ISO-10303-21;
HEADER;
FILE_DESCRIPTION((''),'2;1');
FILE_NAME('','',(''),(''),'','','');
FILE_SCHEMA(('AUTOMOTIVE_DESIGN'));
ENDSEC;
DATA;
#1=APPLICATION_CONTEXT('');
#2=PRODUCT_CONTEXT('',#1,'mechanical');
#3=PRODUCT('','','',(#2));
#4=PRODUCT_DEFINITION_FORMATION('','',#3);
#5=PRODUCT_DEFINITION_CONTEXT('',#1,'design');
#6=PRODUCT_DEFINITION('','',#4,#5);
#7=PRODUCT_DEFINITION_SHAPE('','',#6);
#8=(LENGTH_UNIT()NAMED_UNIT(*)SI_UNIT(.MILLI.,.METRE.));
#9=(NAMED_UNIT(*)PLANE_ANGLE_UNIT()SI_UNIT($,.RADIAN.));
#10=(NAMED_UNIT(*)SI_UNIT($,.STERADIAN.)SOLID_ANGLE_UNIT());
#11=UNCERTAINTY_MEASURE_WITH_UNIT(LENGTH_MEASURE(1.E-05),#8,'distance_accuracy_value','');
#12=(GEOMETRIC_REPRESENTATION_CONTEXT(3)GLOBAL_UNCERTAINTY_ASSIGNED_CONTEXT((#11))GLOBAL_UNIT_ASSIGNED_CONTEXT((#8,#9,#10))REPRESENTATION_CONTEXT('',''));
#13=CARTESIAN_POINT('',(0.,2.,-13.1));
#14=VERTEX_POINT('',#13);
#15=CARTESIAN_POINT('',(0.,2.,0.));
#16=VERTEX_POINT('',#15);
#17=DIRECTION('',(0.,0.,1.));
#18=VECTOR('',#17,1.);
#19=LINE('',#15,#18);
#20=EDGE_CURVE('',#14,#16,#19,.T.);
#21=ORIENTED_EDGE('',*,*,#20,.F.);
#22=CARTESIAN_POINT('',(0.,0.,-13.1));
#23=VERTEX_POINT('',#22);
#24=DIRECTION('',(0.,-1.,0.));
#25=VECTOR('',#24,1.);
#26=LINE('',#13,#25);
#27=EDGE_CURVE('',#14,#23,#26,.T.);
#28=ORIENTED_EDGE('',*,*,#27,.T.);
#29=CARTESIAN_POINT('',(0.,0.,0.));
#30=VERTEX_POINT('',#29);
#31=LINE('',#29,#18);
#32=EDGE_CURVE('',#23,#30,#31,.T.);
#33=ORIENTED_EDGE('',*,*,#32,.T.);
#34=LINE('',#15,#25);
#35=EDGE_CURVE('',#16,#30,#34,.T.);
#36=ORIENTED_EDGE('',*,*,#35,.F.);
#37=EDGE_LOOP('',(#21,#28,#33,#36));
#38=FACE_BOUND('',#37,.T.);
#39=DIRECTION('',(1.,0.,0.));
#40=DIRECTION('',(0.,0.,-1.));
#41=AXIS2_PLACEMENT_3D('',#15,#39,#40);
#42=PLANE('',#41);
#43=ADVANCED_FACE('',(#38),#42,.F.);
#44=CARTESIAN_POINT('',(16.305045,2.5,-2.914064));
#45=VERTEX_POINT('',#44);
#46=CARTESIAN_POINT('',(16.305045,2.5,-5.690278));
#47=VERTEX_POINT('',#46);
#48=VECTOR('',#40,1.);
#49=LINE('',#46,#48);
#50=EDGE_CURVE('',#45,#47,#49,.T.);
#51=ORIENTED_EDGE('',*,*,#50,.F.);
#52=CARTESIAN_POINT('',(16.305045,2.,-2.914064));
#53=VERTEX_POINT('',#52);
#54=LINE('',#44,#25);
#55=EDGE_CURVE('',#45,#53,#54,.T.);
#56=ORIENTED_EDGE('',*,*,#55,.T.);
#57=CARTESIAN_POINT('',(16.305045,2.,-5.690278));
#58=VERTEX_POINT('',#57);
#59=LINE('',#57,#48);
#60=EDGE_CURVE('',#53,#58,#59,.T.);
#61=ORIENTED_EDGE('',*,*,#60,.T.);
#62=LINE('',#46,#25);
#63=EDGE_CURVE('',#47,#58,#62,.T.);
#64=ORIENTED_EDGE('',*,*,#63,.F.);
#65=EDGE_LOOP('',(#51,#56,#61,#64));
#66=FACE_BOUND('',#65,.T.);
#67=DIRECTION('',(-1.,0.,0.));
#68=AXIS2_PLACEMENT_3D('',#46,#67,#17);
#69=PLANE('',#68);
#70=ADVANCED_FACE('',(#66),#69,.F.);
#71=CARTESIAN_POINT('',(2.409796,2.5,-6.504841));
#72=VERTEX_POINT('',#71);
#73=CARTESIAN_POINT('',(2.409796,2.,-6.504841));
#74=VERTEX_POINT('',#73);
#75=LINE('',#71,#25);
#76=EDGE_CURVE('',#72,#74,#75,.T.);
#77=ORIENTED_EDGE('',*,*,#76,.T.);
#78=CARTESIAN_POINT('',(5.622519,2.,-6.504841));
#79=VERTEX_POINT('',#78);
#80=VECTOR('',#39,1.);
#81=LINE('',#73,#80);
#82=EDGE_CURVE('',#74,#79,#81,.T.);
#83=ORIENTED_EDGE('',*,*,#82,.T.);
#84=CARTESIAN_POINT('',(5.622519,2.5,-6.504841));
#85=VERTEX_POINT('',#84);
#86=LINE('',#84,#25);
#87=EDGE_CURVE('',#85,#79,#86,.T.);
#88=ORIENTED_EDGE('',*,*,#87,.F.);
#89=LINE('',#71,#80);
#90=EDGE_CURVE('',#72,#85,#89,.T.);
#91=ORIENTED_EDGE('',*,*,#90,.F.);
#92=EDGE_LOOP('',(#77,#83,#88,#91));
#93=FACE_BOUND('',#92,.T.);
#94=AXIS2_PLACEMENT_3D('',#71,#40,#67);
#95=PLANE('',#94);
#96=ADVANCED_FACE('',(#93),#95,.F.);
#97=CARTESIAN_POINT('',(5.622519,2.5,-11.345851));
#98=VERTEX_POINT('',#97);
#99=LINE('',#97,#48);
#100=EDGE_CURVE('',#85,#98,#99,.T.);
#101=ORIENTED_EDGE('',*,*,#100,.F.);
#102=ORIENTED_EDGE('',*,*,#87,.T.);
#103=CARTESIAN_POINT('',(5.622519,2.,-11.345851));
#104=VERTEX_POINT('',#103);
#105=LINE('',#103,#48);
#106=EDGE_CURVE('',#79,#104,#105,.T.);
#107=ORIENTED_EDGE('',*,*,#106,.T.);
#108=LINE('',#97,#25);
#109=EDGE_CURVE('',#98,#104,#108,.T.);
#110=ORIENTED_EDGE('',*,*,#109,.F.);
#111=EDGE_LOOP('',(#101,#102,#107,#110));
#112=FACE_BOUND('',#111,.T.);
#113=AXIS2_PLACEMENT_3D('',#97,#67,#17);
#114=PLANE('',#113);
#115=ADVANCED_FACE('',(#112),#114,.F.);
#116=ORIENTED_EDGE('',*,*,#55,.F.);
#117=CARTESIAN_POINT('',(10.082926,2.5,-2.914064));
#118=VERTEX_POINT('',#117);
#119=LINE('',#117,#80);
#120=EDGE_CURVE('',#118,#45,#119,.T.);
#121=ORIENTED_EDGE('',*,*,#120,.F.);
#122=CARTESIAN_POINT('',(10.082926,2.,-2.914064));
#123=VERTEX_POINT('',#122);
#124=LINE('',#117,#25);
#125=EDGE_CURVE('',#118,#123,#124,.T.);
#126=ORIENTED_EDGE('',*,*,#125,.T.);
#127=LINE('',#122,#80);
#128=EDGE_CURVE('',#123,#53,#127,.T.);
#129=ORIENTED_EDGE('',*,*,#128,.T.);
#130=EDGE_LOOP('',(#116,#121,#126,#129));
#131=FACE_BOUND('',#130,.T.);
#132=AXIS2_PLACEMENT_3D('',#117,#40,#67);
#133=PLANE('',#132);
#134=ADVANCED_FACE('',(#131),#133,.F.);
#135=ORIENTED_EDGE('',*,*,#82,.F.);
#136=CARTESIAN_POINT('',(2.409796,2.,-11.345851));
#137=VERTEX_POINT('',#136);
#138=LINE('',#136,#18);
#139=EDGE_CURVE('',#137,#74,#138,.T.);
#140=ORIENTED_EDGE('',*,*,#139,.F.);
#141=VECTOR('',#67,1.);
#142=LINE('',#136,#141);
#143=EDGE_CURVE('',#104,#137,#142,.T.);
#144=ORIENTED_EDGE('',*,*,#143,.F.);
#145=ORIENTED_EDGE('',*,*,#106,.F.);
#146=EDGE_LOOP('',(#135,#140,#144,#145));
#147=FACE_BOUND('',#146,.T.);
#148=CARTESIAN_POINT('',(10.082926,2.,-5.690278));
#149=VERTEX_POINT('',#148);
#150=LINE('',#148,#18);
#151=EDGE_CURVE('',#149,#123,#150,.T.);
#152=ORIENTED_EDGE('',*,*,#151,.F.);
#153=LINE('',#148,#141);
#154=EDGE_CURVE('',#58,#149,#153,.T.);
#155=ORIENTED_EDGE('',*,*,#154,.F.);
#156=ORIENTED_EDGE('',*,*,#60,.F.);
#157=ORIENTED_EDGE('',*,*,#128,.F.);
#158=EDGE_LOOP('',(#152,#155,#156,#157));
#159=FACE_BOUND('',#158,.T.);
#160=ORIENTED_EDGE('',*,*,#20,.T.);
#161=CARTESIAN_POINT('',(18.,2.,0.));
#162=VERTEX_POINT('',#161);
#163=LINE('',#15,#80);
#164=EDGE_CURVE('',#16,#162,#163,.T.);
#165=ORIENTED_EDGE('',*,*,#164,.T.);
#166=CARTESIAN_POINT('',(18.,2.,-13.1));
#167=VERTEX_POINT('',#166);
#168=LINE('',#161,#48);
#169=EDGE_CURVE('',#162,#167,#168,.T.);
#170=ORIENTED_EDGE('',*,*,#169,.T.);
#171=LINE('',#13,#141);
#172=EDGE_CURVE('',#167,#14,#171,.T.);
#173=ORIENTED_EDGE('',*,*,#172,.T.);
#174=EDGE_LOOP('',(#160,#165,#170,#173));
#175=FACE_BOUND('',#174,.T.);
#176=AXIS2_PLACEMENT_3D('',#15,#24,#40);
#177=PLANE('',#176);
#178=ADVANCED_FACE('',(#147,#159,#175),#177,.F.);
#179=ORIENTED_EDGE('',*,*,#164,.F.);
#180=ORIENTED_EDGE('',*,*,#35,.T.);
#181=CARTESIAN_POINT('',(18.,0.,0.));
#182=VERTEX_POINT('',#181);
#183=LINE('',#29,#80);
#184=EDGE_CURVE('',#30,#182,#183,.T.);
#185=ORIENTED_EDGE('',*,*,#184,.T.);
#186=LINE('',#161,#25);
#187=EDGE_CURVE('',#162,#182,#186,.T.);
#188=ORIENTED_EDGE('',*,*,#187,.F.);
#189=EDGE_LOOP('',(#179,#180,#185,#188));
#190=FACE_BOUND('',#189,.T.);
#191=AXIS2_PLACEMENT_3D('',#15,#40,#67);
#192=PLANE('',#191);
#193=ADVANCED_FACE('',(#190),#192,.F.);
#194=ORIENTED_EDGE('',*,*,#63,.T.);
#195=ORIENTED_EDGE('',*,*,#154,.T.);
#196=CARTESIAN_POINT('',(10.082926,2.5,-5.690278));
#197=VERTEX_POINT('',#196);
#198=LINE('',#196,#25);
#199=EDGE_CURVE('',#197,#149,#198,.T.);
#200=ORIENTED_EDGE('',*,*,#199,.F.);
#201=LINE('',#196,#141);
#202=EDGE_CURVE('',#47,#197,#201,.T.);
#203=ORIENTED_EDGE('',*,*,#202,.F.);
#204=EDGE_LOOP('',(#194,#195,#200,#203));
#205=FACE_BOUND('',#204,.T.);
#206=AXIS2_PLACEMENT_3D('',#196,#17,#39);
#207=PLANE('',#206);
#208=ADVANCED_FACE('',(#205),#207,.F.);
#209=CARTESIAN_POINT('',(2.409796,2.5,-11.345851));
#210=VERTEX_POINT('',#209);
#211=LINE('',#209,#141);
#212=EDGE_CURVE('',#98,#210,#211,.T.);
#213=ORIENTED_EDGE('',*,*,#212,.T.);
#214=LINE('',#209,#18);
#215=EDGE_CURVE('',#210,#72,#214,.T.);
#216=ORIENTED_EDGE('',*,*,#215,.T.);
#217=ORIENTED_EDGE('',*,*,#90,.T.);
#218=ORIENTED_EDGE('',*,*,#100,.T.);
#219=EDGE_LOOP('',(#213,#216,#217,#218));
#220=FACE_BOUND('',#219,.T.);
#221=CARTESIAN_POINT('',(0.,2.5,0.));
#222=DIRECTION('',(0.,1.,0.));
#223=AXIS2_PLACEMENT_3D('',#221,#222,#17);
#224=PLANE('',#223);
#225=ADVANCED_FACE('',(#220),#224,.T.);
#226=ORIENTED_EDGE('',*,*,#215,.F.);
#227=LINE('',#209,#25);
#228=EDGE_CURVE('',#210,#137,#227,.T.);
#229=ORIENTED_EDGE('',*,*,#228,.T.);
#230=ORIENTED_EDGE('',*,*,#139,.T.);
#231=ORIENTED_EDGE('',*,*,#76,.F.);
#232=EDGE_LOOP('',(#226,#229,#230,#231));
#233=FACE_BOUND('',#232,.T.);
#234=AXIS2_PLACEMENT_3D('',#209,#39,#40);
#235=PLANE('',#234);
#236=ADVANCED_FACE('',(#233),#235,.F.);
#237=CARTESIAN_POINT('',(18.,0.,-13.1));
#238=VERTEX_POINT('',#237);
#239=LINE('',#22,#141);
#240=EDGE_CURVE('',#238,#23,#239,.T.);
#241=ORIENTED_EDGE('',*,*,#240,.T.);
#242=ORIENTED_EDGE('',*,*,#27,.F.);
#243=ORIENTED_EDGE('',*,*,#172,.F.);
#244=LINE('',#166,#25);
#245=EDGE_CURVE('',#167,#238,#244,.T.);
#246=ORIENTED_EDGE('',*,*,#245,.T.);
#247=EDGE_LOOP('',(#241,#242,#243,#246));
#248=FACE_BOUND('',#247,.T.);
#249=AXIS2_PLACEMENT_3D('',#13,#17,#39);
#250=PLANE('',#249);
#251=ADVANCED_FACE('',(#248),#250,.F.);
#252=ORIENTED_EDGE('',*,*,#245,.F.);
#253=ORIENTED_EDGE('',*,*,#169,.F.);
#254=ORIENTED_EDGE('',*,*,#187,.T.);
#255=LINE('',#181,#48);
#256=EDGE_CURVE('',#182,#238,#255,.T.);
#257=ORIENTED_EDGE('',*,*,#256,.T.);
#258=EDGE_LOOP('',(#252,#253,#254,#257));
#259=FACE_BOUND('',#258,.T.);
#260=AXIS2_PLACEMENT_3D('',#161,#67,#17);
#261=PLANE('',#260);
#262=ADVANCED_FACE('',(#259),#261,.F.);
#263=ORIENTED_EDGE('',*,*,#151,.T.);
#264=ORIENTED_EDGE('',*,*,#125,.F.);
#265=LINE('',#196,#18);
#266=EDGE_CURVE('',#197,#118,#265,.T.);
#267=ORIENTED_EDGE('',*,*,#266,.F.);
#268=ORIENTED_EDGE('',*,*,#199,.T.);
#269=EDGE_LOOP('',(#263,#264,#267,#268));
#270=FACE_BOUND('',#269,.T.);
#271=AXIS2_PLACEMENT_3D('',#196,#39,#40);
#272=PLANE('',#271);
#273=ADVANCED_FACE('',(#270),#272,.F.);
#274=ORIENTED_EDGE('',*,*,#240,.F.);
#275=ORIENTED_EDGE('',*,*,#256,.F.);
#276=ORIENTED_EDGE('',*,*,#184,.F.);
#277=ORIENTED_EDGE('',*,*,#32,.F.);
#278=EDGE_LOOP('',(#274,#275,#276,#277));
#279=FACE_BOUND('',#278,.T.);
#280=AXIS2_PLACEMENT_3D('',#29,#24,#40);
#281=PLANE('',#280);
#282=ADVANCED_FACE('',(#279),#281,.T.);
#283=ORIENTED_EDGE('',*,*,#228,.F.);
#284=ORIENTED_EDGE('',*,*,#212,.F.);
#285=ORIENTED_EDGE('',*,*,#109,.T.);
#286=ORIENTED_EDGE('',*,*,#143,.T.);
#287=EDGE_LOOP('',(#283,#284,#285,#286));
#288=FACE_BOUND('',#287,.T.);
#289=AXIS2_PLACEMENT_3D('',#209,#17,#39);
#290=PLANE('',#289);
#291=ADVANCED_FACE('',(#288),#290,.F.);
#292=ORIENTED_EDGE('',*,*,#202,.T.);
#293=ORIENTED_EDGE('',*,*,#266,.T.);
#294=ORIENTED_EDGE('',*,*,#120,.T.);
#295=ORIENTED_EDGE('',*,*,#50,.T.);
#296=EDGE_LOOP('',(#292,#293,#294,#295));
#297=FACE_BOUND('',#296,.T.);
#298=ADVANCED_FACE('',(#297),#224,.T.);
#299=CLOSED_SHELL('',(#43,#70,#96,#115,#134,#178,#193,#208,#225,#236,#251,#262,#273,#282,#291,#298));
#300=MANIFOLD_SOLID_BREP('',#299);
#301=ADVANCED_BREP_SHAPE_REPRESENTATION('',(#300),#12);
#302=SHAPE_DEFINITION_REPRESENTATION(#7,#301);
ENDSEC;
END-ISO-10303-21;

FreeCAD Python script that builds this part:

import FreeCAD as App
import Part
import Sketcher

doc = App.newDocument("Part")
body = doc.addObject("PartDesign::Body", "Body")

# Sketch on XZ plane
sketch1 = body.newObject("Sketcher::SketchObject", "Sketch")
sketch1.AttachmentSupport = (doc.getObject("XZ_Plane"), [""])
sketch1.MapMode = "FlatFace"
sketch1.addGeometry(Part.LineSegment(App.Vector(0, -13, 0), App.Vector(0, 0, 0)), False)
sketch1.addGeometry(Part.LineSegment(App.Vector(0, 0, 0), App.Vector(18, 0, 0)), False)
sketch1.addGeometry(Part.LineSegment(App.Vector(18, 0, 0), App.Vector(18, -13, 0)), False)
sketch1.addGeometry(Part.LineSegment(App.Vector(18, -13, 0), App.Vector(0, -13, 0)), False)
sketch1.addConstraint(Sketcher.Constraint("Coincident", 0, 2, 1, 1))
sketch1.addConstraint(Sketcher.Constraint("Coincident", 1, 2, 2, 1))
sketch1.addConstraint(Sketcher.Constraint("Coincident", 2, 2, 3, 1))
sketch1.addConstraint(Sketcher.Constraint("Coincident", 3, 2, 0, 1))
sketch1.addConstraint(Sketcher.Constraint("Vertical", 0))
sketch1.addConstraint(Sketcher.Constraint("Horizontal", 1))
sketch1.addConstraint(Sketcher.Constraint("Vertical", 2))
sketch1.addConstraint(Sketcher.Constraint("Horizontal", 3))
sketch1.addConstraint(Sketcher.Constraint("Coincident", 0, 2, -1, 1))
sketch1.addConstraint(Sketcher.Constraint("DistanceX", 1, 1, 1, 2, 18.0))
sketch1.addConstraint(Sketcher.Constraint("DistanceY", 0, 1, 0, 2, 13.1))
pad1 = body.newObject("PartDesign::Pad", "Pad")
pad1.Profile = sketch1
pad1.Length = 2
pad1.Reversed = True

# Sketch on XZ plane
sketch2 = body.newObject("Sketcher::SketchObject", "Sketch001")
sketch2.AttachmentSupport = (doc.getObject("XZ_Plane"), [""])
sketch2.MapMode = "FlatFace"
sketch2.AttachmentOffset = App.Placement(App.Vector(0, 0, -2), App.Rotation())
sketch2.addGeometry(Part.LineSegment(App.Vector(2.4, -11.3, 0), App.Vector(2.4, -6.5, 0)), False)
sketch2.addGeometry(Part.LineSegment(App.Vector(2.4, -6.5, 0), App.Vector(5.6, -6.5, 0)), False)
sketch2.addGeometry(Part.LineSegment(App.Vector(5.6, -6.5, 0), App.Vector(5.6, -11.3, 0)), False)
sketch2.addGeometry(Part.LineSegment(App.Vector(5.6, -11.3, 0), App.Vector(2.4, -11.3, 0)), False)
sketch2.addGeometry(Part.LineSegment(App.Vector(10.1, -5.7, 0), App.Vector(10.1, -2.9, 0)), False)
sketch2.addGeometry(Part.LineSegment(App.Vector(10.1, -2.9, 0), App.Vector(16.3, -2.9, 0)), False)
sketch2.addGeometry(Part.LineSegment(App.Vector(16.3, -2.9, 0), App.Vector(16.3, -5.7, 0)), False)
sketch2.addGeometry(Part.LineSegment(App.Vector(16.3, -5.7, 0), App.Vector(10.1, -5.7, 0)), False)
sketch2.addConstraint(Sketcher.Constraint("Coincident", 0, 2, 1, 1))
sketch2.addConstraint(Sketcher.Constraint("Coincident", 1, 2, 2, 1))
sketch2.addConstraint(Sketcher.Constraint("Coincident", 2, 2, 3, 1))
sketch2.addConstraint(Sketcher.Constraint("Coincident", 3, 2, 0, 1))
sketch2.addConstraint(Sketcher.Constraint("Coincident", 4, 2, 5, 1))
sketch2.addConstraint(Sketcher.Constraint("Coincident", 5, 2, 6, 1))
sketch2.addConstraint(Sketcher.Constraint("Coincident", 6, 2, 7, 1))
sketch2.addConstraint(Sketcher.Constraint("Coincident", 7, 2, 4, 1))
sketch2.addConstraint(Sketcher.Constraint("Vertical", 0))
sketch2.addConstraint(Sketcher.Constraint("Horizontal", 1))
sketch2.addConstraint(Sketcher.Constraint("Vertical", 2))
sketch2.addConstraint(Sketcher.Constraint("Horizontal", 3))
sketch2.addConstraint(Sketcher.Constraint("Vertical", 4))
sketch2.addConstraint(Sketcher.Constraint("Horizontal", 5))
sketch2.addConstraint(Sketcher.Constraint("Vertical", 6))
sketch2.addConstraint(Sketcher.Constraint("Horizontal", 7))
sketch2.addConstraint(Sketcher.Constraint("DistanceX", 5, 1, 5, 2, 6.222119))
sketch2.addConstraint(Sketcher.Constraint("DistanceY", 0, 1, 0, 2, 4.841011))
sketch2.addConstraint(Sketcher.Constraint("DistanceX", 1, 1, 1, 2, 3.212723))
sketch2.addConstraint(Sketcher.Constraint("DistanceY", 4, 1, 4, 2, 2.776214))
sketch2.addConstraint(Sketcher.Constraint("DistanceY", 0, 2, -1, 1, 6.504841))
sketch2.addConstraint(Sketcher.Constraint("DistanceX", -1, 1, 1, 2, 5.622519))
sketch2.addConstraint(Sketcher.Constraint("DistanceX", 0, 2, 4, 2, 7.673131))
sketch2.addConstraint(Sketcher.Constraint("DistanceY", 4, 2, -1, 1, 2.914064))
pad2 = body.newObject("PartDesign::Pad", "Pad001")
pad2.Profile = sketch2
pad2.Length = 0.5
pad2.Reversed = True

doc.recompute()
